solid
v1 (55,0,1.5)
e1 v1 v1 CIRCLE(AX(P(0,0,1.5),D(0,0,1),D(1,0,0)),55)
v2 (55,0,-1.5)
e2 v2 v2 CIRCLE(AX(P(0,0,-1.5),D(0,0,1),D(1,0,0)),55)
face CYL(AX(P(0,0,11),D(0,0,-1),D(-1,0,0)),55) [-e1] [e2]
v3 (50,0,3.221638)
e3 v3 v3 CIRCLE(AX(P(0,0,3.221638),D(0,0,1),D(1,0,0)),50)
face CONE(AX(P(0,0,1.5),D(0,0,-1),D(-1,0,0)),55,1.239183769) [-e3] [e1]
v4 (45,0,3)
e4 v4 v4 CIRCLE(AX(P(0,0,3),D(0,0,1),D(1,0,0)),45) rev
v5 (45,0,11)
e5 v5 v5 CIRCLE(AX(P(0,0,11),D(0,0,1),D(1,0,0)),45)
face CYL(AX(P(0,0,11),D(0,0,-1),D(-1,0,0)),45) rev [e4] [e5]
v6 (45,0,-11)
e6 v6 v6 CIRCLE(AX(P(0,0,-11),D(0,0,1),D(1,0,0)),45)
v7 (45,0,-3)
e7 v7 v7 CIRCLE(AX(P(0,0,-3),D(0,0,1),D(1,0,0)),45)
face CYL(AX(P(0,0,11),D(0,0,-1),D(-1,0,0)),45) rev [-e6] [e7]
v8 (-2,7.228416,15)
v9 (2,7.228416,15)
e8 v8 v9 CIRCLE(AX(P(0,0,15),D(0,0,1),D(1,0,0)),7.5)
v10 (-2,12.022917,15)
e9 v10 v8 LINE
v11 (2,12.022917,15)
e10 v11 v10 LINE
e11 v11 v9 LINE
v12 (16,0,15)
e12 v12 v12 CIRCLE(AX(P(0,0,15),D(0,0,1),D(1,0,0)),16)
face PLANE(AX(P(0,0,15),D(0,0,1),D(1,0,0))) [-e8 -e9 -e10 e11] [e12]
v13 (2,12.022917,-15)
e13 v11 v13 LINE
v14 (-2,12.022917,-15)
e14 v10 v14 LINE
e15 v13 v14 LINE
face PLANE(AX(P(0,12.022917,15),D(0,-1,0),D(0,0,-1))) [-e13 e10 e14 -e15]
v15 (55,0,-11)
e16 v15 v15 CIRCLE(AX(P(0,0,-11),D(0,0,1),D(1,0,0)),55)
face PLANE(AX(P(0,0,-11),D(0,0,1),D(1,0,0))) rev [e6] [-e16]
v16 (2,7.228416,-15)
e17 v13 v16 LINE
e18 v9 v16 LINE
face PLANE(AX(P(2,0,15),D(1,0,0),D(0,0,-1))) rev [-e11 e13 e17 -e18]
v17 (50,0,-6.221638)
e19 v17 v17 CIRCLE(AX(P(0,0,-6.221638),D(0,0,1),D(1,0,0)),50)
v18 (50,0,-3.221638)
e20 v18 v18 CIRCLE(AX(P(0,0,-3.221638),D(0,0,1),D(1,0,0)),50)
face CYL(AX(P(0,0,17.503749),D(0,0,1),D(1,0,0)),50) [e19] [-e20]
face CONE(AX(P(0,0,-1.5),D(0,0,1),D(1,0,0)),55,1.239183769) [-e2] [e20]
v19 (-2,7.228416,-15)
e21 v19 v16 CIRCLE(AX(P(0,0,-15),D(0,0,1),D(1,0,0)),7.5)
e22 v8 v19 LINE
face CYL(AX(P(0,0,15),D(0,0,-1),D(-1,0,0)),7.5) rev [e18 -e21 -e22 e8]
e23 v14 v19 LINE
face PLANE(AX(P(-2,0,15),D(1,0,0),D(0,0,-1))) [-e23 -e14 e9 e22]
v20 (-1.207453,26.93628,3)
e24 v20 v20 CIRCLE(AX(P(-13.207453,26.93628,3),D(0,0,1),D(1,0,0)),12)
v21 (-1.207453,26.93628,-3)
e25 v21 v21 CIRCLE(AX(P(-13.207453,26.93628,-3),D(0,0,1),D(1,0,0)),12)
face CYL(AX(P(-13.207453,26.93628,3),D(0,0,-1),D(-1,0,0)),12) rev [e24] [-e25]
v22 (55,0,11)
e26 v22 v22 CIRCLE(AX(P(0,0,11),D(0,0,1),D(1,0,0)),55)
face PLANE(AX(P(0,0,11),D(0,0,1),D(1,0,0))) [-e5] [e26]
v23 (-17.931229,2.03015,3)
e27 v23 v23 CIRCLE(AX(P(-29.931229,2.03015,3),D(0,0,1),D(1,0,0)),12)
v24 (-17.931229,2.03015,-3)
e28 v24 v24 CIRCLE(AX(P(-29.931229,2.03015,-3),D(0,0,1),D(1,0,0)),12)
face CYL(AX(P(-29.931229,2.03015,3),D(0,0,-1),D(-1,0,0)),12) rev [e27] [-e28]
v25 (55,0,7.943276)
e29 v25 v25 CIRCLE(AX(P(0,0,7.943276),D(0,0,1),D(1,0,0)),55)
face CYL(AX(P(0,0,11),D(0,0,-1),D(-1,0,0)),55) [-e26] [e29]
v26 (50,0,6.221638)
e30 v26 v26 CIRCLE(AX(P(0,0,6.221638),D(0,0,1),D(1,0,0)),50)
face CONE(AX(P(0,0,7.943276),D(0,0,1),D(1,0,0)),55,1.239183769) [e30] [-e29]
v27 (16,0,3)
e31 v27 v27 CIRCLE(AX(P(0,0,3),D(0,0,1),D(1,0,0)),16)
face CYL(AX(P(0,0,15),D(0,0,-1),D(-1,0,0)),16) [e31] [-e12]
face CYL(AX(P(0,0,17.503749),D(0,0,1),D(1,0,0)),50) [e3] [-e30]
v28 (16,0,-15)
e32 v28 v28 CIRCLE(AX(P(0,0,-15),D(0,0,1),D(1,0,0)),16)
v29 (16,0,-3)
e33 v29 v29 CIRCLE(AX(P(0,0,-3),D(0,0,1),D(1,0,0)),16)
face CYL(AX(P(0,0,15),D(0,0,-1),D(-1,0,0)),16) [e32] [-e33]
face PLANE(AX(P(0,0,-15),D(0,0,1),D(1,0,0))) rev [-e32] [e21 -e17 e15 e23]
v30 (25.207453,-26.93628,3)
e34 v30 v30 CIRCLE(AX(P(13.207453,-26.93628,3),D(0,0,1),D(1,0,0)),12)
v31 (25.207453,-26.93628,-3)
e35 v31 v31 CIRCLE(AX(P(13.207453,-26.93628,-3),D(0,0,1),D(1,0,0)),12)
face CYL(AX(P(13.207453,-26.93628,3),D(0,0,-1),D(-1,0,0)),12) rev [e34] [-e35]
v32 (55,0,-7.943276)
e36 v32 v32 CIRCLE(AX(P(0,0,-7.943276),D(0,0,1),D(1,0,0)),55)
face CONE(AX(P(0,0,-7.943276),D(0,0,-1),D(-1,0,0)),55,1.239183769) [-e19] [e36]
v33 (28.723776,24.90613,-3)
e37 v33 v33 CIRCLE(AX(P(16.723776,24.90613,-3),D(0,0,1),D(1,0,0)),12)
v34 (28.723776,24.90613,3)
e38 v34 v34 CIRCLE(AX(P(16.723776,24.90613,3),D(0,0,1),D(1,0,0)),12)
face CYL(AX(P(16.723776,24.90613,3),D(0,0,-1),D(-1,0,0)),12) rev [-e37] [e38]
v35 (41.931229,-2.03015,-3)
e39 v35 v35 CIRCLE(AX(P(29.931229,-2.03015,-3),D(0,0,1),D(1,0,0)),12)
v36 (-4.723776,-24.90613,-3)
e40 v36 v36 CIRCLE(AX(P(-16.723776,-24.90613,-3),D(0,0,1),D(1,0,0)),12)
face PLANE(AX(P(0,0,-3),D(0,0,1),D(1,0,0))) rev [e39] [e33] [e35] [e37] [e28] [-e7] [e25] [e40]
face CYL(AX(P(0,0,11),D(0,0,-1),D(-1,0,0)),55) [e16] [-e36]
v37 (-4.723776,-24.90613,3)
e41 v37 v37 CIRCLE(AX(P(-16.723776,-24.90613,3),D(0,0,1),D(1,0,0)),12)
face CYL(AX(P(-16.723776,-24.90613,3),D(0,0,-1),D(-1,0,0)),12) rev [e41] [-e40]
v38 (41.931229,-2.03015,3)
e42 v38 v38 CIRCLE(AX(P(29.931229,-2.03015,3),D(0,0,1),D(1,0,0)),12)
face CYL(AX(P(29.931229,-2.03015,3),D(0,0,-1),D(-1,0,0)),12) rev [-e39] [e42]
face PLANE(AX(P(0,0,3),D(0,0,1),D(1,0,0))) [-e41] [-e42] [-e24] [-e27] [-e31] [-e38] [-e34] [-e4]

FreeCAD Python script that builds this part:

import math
import FreeCAD as App
import Part
import Sketcher
from FreeCAD import Vector
Q = App.Units.Quantity


def add_polygon(sketch, points):
    """Adds a closed chain of lines whose ends are joined by coincident constraints."""
    first, n = sketch.GeometryCount, len(points)
    for a, b in zip(points, points[1:] + points[:1]):
        sketch.addGeometry(Part.LineSegment(App.Vector(*a, 0), App.Vector(*b, 0)), False)
    for i in range(n):
        sketch.addConstraint(Sketcher.Constraint("Coincident", first + i, 2, first + (i + 1) % n, 1))

doc = App.newDocument("Part")
body = doc.addObject("PartDesign::Body", "Body")

# Sketch on XY plane
sketch1 = doc.addObject("Sketcher::SketchObject", "Sketch")
body.addObject(sketch1)
sketch1.AttachmentSupport = (doc.XY_Plane, [""])
sketch1.MapMode = "FlatFace"
sketch1.addGeometry([
    Part.Circle(Vector(0, 0, 0), Vector(0, 0, 1), 16),  # 0
    Part.ArcOfCircle(Part.Circle(Vector(0, 0, 0), Vector(0, 0, 1), 7.5), math.radians(105), math.radians(435)),  # 1
    Part.LineSegment(Vector(-2, 7.2, 0), Vector(-2, 12, 0)),  # 2
    Part.LineSegment(Vector(-2, 12, 0), Vector(2, 12, 0)),  # 3
    Part.LineSegment(Vector(2, 12, 0), Vector(2, 7.2, 0)),  # 4
], False)
sketch1.addConstraint([
    Sketcher.Constraint("Coincident", 1, 1, 2, 1),
    Sketcher.Constraint("Coincident", 2, 2, 3, 1),
    Sketcher.Constraint("Coincident", 3, 2, 4, 1),
    Sketcher.Constraint("Coincident", 4, 2, 1, 2),
    Sketcher.Constraint("Vertical", 2),
    Sketcher.Constraint("Horizontal", 3),
    Sketcher.Constraint("Vertical", 4),
    Sketcher.Constraint("Coincident", 0, 3, -1, 1),
    Sketcher.Constraint("Coincident", 1, 3, -1, 1),
    Sketcher.Constraint("Horizontal", 1, 1, 4, 2),
    Sketcher.Constraint("Diameter", 0, Q("32 mm")),
    Sketcher.Constraint("Radius", 1, Q("7.5 mm")),
    Sketcher.Constraint("DistanceX", 3, 1, 3, 2, Q("4 mm")),
    Sketcher.Constraint("DistanceY", 2, 1, 2, 2, Q("4.794501 mm")),
])
pad1 = doc.addObject("PartDesign::Pad", "Pad")
body.addObject(pad1)
pad1.Profile = sketch1
pad1.Length = 30
pad1.Midplane = True

# Sketch on XY plane
sketch2 = doc.addObject("Sketcher::SketchObject", "Sketch001")
body.addObject(sketch2)
sketch2.AttachmentSupport = (doc.XY_Plane, [""])
sketch2.MapMode = "FlatFace"
sketch2.addGeometry([
    Part.Circle(Vector(0, 0, 0), Vector(0, 0, 1), 45),  # 0
    Part.Circle(Vector(-17, -25, 0), Vector(0, 0, 1), 12),  # 1
    Part.Circle(Vector(13, -27, 0), Vector(0, 0, 1), 12),  # 2
    Part.Circle(Vector(30, -2, 0), Vector(0, 0, 1), 12),  # 3
    Part.Circle(Vector(-30, 2, 0), Vector(0, 0, 1), 12),  # 4
    Part.Circle(Vector(-13, 27, 0), Vector(0, 0, 1), 12),  # 5
    Part.Circle(Vector(0, 0, 0), Vector(0, 0, 1), 16),  # 6
    Part.Circle(Vector(17, 25, 0), Vector(0, 0, 1), 12),  # 7
], False)
sketch2.addConstraint([
    Sketcher.Constraint("Coincident", 0, 3, -1, 1),
    Sketcher.Constraint("Coincident", 6, 3, -1, 1),
    Sketcher.Constraint("Equal", 1, 2),
    Sketcher.Constraint("Equal", 2, 3),
    Sketcher.Constraint("Equal", 3, 4),
    Sketcher.Constraint("Equal", 4, 5),
    Sketcher.Constraint("Equal", 5, 7),
    Sketcher.Constraint("Symmetric", 3, 3, 4, 3, -1, 1),
    Sketcher.Constraint("Symmetric", 2, 3, 5, 3, -1, 1),
    Sketcher.Constraint("Symmetric", 1, 3, 7, 3, -1, 1),
    Sketcher.Constraint("Diameter", 0, Q("90 mm")),
    Sketcher.Constraint("Diameter", 1, Q("24 mm")),
    Sketcher.Constraint("Diameter", 6, Q("32 mm")),
    Sketcher.Constraint("DistanceY", 3, 3, 4, 3, Q("4.0603 mm")),
    Sketcher.Constraint("DistanceY", 1, 3, -1, 1, Q("24.90613 mm")),
    Sketcher.Constraint("DistanceY", 2, 3, -1, 1, Q("26.93628 mm")),
    Sketcher.Constraint("DistanceX", -1, 1, 3, 3, Q("29.931229 mm")),
    Sketcher.Constraint("DistanceX", 1, 3, 2, 3, Q("29.931229 mm")),
    Sketcher.Constraint("DistanceX", 1, 3, -1, 1, Q("16.723776 mm")),
])
pad2 = doc.addObject("PartDesign::Pad", "Pad001")
body.addObject(pad2)
pad2.Profile = sketch2
pad2.Length = 6
pad2.Midplane = True

# Sketch on XY plane
sketch3 = doc.addObject("Sketcher::SketchObject", "Sketch002")
body.addObject(sketch3)
sketch3.AttachmentSupport = (doc.XY_Plane, [""])
sketch3.MapMode = "FlatFace"
sketch3.addGeometry([
    Part.Circle(Vector(0, 0, 0), Vector(0, 0, 1), 55),
    Part.Circle(Vector(0, 0, 0), Vector(0, 0, 1), 45),
], False)
sketch3.addConstraint([
    Sketcher.Constraint("Coincident", 0, 3, -1, 1),
    Sketcher.Constraint("Coincident", 1, 3, -1, 1),
    Sketcher.Constraint("Diameter", 0, Q("110 mm")),
    Sketcher.Constraint("Diameter", 1, Q("90 mm")),
])
pad3 = doc.addObject("PartDesign::Pad", "Pad002")
body.addObject(pad3)
pad3.Profile = sketch3
pad3.Length = 22
pad3.Midplane = True

# Sketch on YZ plane
sketch4 = doc.addObject("Sketcher::SketchObject", "Sketch003")
body.addObject(sketch4)
sketch4.AttachmentSupport = (doc.YZ_Plane, [""])
sketch4.MapMode = "FlatFace"
add_polygon(sketch4, [(55, 1.5), (55, 7.9), (50, 6.2), (50, 3.2)])  # lines 0-3
add_polygon(sketch4, [(55, -7.9), (55, -1.5), (50, -3.2), (50, -6.2)])  # lines 4-7
sketch4.addConstraint([
    Sketcher.Constraint("Vertical", 0),
    Sketcher.Constraint("Vertical", 2),
    Sketcher.Constraint("Vertical", 4),
    Sketcher.Constraint("Vertical", 6),
    Sketcher.Constraint("Symmetric", 3, 2, 4, 2, -1),
    Sketcher.Constraint("Symmetric", 2, 2, 5, 2, -1),
    Sketcher.Constraint("Parallel", 1, 5),
    Sketcher.Constraint("Parallel", 3, 7),
    Sketcher.Constraint("Equal", 0, 4),
    Sketcher.Constraint("DistanceY", 2, 2, 2, 1, Q("3 mm")),
    Sketcher.Constraint("Angle", 1, Q("-161 deg")),
    Sketcher.Constraint("DistanceX", -1, 1, 0, 2, Q("55 mm")),
    Sketcher.Constraint("DistanceX", -1, 1, 1, 2, Q("50 mm")),
    Sketcher.Constraint("DistanceY", 4, 2, 3, 2, Q("3 mm")),
])
groove = doc.addObject("PartDesign::Groove", "Groove")
body.addObject(groove)
groove.Profile = sketch4
groove.ReferenceAxis = (sketch4, ["V_Axis"])
groove.Angle = 360

doc.recompute()
